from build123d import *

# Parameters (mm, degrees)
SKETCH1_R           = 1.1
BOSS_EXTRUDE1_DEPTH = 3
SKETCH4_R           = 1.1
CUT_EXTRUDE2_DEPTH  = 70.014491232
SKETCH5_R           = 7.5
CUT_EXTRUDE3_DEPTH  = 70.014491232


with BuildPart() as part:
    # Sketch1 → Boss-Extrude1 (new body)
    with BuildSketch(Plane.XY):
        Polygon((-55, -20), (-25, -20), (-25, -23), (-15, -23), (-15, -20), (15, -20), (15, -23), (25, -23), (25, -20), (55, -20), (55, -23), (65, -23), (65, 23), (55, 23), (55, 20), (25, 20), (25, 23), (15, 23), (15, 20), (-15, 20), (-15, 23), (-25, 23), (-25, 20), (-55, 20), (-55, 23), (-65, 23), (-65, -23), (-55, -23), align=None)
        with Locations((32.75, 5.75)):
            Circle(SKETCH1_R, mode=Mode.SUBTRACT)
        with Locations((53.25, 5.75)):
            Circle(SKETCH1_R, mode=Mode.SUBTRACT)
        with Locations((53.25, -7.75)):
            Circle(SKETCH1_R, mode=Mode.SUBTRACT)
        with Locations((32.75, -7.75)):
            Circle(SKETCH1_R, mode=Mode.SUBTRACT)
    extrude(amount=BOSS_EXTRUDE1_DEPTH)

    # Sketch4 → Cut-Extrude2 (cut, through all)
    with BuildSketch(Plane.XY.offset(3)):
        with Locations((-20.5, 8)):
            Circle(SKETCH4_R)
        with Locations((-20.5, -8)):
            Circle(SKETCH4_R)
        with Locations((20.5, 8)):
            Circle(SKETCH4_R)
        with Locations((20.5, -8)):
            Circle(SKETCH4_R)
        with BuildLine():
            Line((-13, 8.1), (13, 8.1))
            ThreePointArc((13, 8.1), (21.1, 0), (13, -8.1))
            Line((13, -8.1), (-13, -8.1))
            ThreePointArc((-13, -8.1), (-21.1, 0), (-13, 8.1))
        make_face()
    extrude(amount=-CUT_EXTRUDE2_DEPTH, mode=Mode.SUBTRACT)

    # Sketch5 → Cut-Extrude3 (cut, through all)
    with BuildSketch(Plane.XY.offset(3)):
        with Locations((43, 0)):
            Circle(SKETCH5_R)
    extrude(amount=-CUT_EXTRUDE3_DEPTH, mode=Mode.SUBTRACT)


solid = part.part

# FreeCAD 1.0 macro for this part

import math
import FreeCAD as App
import Part
import Sketcher
from FreeCAD import Vector
Q = App.Units.Quantity


def add_polygon(sketch, points):
    """Adds a closed chain of lines whose ends are joined by coincident constraints."""
    first, n = sketch.GeometryCount, len(points)
    for a, b in zip(points, points[1:] + points[:1]):
        sketch.addGeometry(Part.LineSegment(App.Vector(*a, 0), App.Vector(*b, 0)), False)
    for i in range(n):
        sketch.addConstraint(Sketcher.Constraint("Coincident", first + i, 2, first + (i + 1) % n, 1))

doc = App.newDocument("Part")
params = doc.addObject("Spreadsheet::Sheet", "Params")
for row, (alias, value) in enumerate([
    ("sketch1_diameter", "2.2 mm"),
    ("sketch1_width", "30 mm"),
    ("sketch1_width2", "10 mm"),
    ("sketch1_height", "3 mm"),
    ("sketch1_height2", "46 mm"),
    ("pad1_length", "3 mm"),
    ("sketch2_diameter", "2.2 mm"),
    ("sketch2_radius", "8.1 mm"),
    ("sketch2_width", "26 mm"),
    ("sketch3_diameter", "15 mm"),
], start=1):
    params.set(f"A{row}", alias)
    params.set(f"B{row}", "=" + value)
    params.setAlias(f"B{row}", alias)

body = doc.addObject("PartDesign::Body", "Body")

# Sketch on XY plane
sketch1 = body.newObject("Sketcher::SketchObject", "Sketch")
sketch1.AttachmentSupport = (doc.getObject("XY_Plane"), [""])
sketch1.MapMode = "FlatFace"
add_polygon(sketch1, [(-55, -20), (-25, -20), (-25, -23), (-15, -23), (-15, -20), (15, -20), (15, -23), (25, -23), (25, -20), (55, -20), (55, -23), (65, -23), (65, 23), (55, 23), (55, 20), (25, 20), (25, 23), (15, 23), (15, 20), (-15, 20), (-15, 23), (-25, 23), (-25, 20), (-55, 20), (-55, 23), (-65, 23), (-65, -23), (-55, -23)])  # lines 0-27
sketch1.addGeometry(Part.Circle(Vector(32.8, -7.8, 0), Vector(0, 0, 1), 1.1), False)  # 28
sketch1.addGeometry(Part.Circle(Vector(53.2, -7.8, 0), Vector(0, 0, 1), 1.1), False)  # 29
sketch1.addGeometry(Part.Circle(Vector(32.8, 5.8, 0), Vector(0, 0, 1), 1.1), False)  # 30
sketch1.addGeometry(Part.Circle(Vector(53.2, 5.8, 0), Vector(0, 0, 1), 1.1), False)  # 31
sketch1.addConstraint(Sketcher.Constraint("Horizontal", 0))
sketch1.addConstraint(Sketcher.Constraint("Vertical", 1))
sketch1.addConstraint(Sketcher.Constraint("Horizontal", 2))
sketch1.addConstraint(Sketcher.Constraint("Vertical", 3))
sketch1.addConstraint(Sketcher.Constraint("Horizontal", 4))
sketch1.addConstraint(Sketcher.Constraint("Vertical", 5))
sketch1.addConstraint(Sketcher.Constraint("Horizontal", 6))
sketch1.addConstraint(Sketcher.Constraint("Vertical", 7))
sketch1.addConstraint(Sketcher.Constraint("Horizontal", 8))
sketch1.addConstraint(Sketcher.Constraint("Vertical", 9))
sketch1.addConstraint(Sketcher.Constraint("Horizontal", 10))
sketch1.addConstraint(Sketcher.Constraint("Vertical", 11))
sketch1.addConstraint(Sketcher.Constraint("Horizontal", 12))
sketch1.addConstraint(Sketcher.Constraint("Vertical", 13))
sketch1.addConstraint(Sketcher.Constraint("Horizontal", 14))
sketch1.addConstraint(Sketcher.Constraint("Vertical", 15))
sketch1.addConstraint(Sketcher.Constraint("Horizontal", 16))
sketch1.addConstraint(Sketcher.Constraint("Vertical", 17))
sketch1.addConstraint(Sketcher.Constraint("Horizontal", 18))
sketch1.addConstraint(Sketcher.Constraint("Vertical", 19))
sketch1.addConstraint(Sketcher.Constraint("Horizontal", 20))
sketch1.addConstraint(Sketcher.Constraint("Vertical", 21))
sketch1.addConstraint(Sketcher.Constraint("Horizontal", 22))
sketch1.addConstraint(Sketcher.Constraint("Vertical", 23))
sketch1.addConstraint(Sketcher.Constraint("Horizontal", 24))
sketch1.addConstraint(Sketcher.Constraint("Vertical", 25))
sketch1.addConstraint(Sketcher.Constraint("Horizontal", 26))
sketch1.addConstraint(Sketcher.Constraint("Vertical", 27))
sketch1.addConstraint(Sketcher.Constraint("Equal", 28, 29))
sketch1.addConstraint(Sketcher.Constraint("Equal", 29, 30))
sketch1.addConstraint(Sketcher.Constraint("Equal", 30, 31))
sketch1.addConstraint(Sketcher.Constraint("Symmetric", 0, 2, 14, 2, -1, 1))
sketch1.addConstraint(Sketcher.Constraint("Symmetric", 2, 2, 16, 2, -1, 1))
sketch1.addConstraint(Sketcher.Constraint("Symmetric", 4, 2, 18, 2, -1, 1))
sketch1.addConstraint(Sketcher.Constraint("Symmetric", 6, 2, 20, 2, -1, 1))
sketch1.addConstraint(Sketcher.Constraint("Symmetric", 8, 2, 22, 2, -1, 1))
sketch1.addConstraint(Sketcher.Constraint("Symmetric", 10, 2, 24, 2, -1, 1))
sketch1.addConstraint(Sketcher.Constraint("Symmetric", 12, 2, 26, 2, -1, 1))
sketch1.addConstraint(Sketcher.Constraint("Symmetric", 2, 2, 5, 2, -2))
sketch1.addConstraint(Sketcher.Constraint("Symmetric", 0, 2, 7, 2, -2))
sketch1.addConstraint(Sketcher.Constraint("Symmetric", 12, 2, 23, 2, -2))
sketch1.addConstraint(Sketcher.Constraint("Horizontal", 28, 3, 29, 3))
sketch1.addConstraint(Sketcher.Constraint("Horizontal", 30, 3, 31, 3))
sketch1.addConstraint(Sketcher.Constraint("Horizontal", 0, 2, 3, 2))
sketch1.addConstraint(Sketcher.Constraint("Horizontal", 6, 2, 9, 2))
sketch1.addConstraint(Sketcher.Constraint("Vertical", 28, 3, 30, 3))
sketch1.addConstraint(Sketcher.Constraint("Vertical", 29, 3, 31, 3))
sketch1.addConstraint(Sketcher.Constraint("Equal", 0, 4))
sketch1.addConstraint(Sketcher.Constraint("Equal", 6, 10))
sketch1.addConstraint(Sketcher.Constraint("Diameter", 28, Q("2.2 mm")))
sketch1.addConstraint(Sketcher.Constraint("DistanceX", 0, 1, 0, 2, Q("30 mm")))
sketch1.addConstraint(Sketcher.Constraint("DistanceX", 2, 1, 2, 2, Q("10 mm")))
sketch1.addConstraint(Sketcher.Constraint("DistanceY", 1, 2, 1, 1, Q("3 mm")))
sketch1.addConstraint(Sketcher.Constraint("DistanceY", 11, 1, 11, 2, Q("46 mm")))
sketch1.addConstraint(Sketcher.Constraint("DistanceX", 28, 3, 29, 3, Q("20.5 mm")))
sketch1.addConstraint(Sketcher.Constraint("DistanceY", 28, 3, 30, 3, Q("13.5 mm")))
sketch1.addConstraint(Sketcher.Constraint("DistanceX", -1, 1, 28, 3, Q("32.75 mm")))
sketch1.addConstraint(Sketcher.Constraint("DistanceY", 28, 3, -1, 1, Q("7.75 mm")))
sketch1.setExpression("Constraints[77]", "Params.sketch1_diameter")
sketch1.setExpression("Constraints[78]", "Params.sketch1_width")
sketch1.setExpression("Constraints[79]", "Params.sketch1_width2")
sketch1.setExpression("Constraints[80]", "Params.sketch1_height")
sketch1.setExpression("Constraints[81]", "Params.sketch1_height2")
pad1 = body.newObject("PartDesign::Pad", "Pad")
pad1.Profile = sketch1
pad1.setExpression("Length", "Params.pad1_length")

# Sketch on XY plane
sketch2 = body.newObject("Sketcher::SketchObject", "Sketch001")
sketch2.AttachmentSupport = (doc.getObject("XY_Plane"), [""])
sketch2.MapMode = "FlatFace"
sketch2.AttachmentOffset = App.Placement(Vector(0, 0, 3), App.Rotation())
sketch2.addGeometry(Part.Circle(Vector(-20.5, 8, 0), Vector(0, 0, 1), 1.1), False)
sketch2.addGeometry(Part.Circle(Vector(-20.5, -8, 0), Vector(0, 0, 1), 1.1), False)
sketch2.addGeometry(Part.Circle(Vector(20.5, 8, 0), Vector(0, 0, 1), 1.1), False)
sketch2.addGeometry(Part.Circle(Vector(20.5, -8, 0), Vector(0, 0, 1), 1.1), False)
sketch2.addGeometry(Part.LineSegment(Vector(13, 8.1, 0), Vector(-13, 8.1, 0)), False)
sketch2.addGeometry(Part.ArcOfCircle(Part.Circle(Vector(-13, 0, 0), Vector(0, 0, 1), 8.1), math.radians(90), math.radians(270)), False)
sketch2.addGeometry(Part.LineSegment(Vector(-13, -8.1, 0), Vector(13, -8.1, 0)), False)
sketch2.addGeometry(Part.ArcOfCircle(Part.Circle(Vector(13, 0, 0), Vector(0, 0, 1), 8.1), math.radians(-90), math.radians(90)), False)
sketch2.addConstraint(Sketcher.Constraint("Tangent", 4, 2, 5, 1))
sketch2.addConstraint(Sketcher.Constraint("Tangent", 5, 2, 6, 1))
sketch2.addConstraint(Sketcher.Constraint("Tangent", 6, 2, 7, 1))
sketch2.addConstraint(Sketcher.Constraint("Tangent", 7, 2, 4, 1))
sketch2.addConstraint(Sketcher.Constraint("Horizontal", 4))
sketch2.addConstraint(Sketcher.Constraint("Horizontal", 6))
sketch2.addConstraint(Sketcher.Constraint("Equal", 0, 1))
sketch2.addConstraint(Sketcher.Constraint("Equal", 1, 2))
sketch2.addConstraint(Sketcher.Constraint("Equal", 2, 3))
sketch2.addConstraint(Sketcher.Constraint("Symmetric", 1, 3, 2, 3, -1, 1))
sketch2.addConstraint(Sketcher.Constraint("Symmetric", 0, 3, 3, 3, -1, 1))
sketch2.addConstraint(Sketcher.Constraint("Symmetric", 5, 3, 7, 3, -1, 1))
sketch2.addConstraint(Sketcher.Constraint("Symmetric", 0, 3, 2, 3, -2))
sketch2.addConstraint(Sketcher.Constraint("Diameter", 0, Q("2.2 mm")))
sketch2.addConstraint(Sketcher.Constraint("Radius", 5, Q("8.1 mm")))
sketch2.addConstraint(Sketcher.Constraint("DistanceX", 4, 2, 4, 1, Q("26 mm")))
sketch2.addConstraint(Sketcher.Constraint("DistanceY", -1, 1, 0, 3, Q("8 mm")))
sketch2.addConstraint(Sketcher.Constraint("DistanceX", 0, 3, 2, 3, Q("41 mm")))
sketch2.setExpression("Constraints[13]", "Params.sketch2_diameter")
sketch2.setExpression("Constraints[14]", "Params.sketch2_radius")
sketch2.setExpression("Constraints[15]", "Params.sketch2_width")
pocket1 = body.newObject("PartDesign::Pocket", "Pocket")
pocket1.Profile = sketch2
pocket1.Type = "ThroughAll"

# Sketch on XY plane
sketch3 = body.newObject("Sketcher::SketchObject", "Sketch002")
sketch3.AttachmentSupport = (doc.getObject("XY_Plane"), [""])
sketch3.MapMode = "FlatFace"
sketch3.AttachmentOffset = App.Placement(Vector(0, 0, 3), App.Rotation())
sketch3.addGeometry(Part.Circle(Vector(43, 0, 0), Vector(0, 0, 1), 8), False)
sketch3.addConstraint(Sketcher.Constraint("PointOnObject", 0, 3, -1))
sketch3.addConstraint(Sketcher.Constraint("Diameter", 0, Q("15 mm")))
sketch3.addConstraint(Sketcher.Constraint("DistanceX", -1, 1, 0, 3, Q("43 mm")))
sketch3.setExpression("Constraints[1]", "Params.sketch3_diameter")
pocket2 = body.newObject("PartDesign::Pocket", "Pocket001")
pocket2.Profile = sketch3
pocket2.Type = "ThroughAll"

doc.recompute()
